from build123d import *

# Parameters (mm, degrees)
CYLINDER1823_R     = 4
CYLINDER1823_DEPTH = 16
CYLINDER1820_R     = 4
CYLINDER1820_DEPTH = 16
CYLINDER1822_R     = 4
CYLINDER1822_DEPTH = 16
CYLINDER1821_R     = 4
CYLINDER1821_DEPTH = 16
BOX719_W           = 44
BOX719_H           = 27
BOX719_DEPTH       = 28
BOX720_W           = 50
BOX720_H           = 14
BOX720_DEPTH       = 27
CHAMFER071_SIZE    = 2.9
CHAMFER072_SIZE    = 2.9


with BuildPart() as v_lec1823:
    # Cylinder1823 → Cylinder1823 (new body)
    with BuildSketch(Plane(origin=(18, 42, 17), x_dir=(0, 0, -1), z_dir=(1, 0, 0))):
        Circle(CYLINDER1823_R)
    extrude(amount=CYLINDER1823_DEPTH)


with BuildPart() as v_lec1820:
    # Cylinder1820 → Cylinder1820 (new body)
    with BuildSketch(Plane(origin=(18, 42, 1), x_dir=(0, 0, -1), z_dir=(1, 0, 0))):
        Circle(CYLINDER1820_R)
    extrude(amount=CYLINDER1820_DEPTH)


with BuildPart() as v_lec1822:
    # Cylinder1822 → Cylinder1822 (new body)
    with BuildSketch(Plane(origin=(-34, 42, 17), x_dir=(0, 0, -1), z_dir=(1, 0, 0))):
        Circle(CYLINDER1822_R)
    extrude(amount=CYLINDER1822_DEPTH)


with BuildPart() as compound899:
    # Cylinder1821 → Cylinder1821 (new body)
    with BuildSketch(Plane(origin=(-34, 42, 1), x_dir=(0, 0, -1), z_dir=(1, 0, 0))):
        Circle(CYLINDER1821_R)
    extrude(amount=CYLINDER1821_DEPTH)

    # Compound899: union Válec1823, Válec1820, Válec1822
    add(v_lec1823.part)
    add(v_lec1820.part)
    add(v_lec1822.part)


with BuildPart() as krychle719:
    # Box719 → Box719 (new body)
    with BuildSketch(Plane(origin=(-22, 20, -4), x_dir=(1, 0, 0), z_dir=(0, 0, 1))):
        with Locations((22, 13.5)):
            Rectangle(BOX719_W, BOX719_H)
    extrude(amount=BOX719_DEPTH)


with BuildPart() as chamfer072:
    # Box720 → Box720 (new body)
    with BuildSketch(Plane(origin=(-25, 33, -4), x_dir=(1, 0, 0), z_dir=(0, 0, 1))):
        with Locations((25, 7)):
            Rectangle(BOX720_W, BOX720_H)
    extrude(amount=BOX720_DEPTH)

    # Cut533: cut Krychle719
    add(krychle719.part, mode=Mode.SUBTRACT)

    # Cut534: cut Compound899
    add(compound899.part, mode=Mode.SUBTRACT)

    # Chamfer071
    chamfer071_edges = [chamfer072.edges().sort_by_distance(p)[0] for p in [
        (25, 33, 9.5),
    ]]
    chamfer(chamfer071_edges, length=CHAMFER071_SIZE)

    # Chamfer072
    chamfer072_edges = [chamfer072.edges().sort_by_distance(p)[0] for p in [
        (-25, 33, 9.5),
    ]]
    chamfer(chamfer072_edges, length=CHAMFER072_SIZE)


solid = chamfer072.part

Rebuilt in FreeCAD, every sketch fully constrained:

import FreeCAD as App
import Part
import Sketcher


def edges_at(feature, points):
    """Names of the edges that pass closest to the given points."""
    edges = feature.Shape.Edges
    near = lambda p: min(range(len(edges)), key=lambda i: edges[i].distToShape(Part.Vertex(*p))[0])
    return sorted({f"Edge{near(p) + 1}" for p in points})

doc = App.newDocument("Part")
body = doc.addObject("PartDesign::Body", "Body")

# Sketch on YZ plane
sketch1 = body.newObject("Sketcher::SketchObject", "Sketch")
sketch1.AttachmentSupport = (doc.getObject("YZ_Plane"), [""])
sketch1.MapMode = "FlatFace"
sketch1.AttachmentOffset = App.Placement(App.Vector(0, 0, 18), App.Rotation())
sketch1.addGeometry(Part.Circle(App.Vector(42, 17, 0), App.Vector(0, 0, 1), 4), False)
sketch1.addConstraint([
    Sketcher.Constraint("Diameter", 0, 8.0),
    Sketcher.Constraint("DistanceX", -1, 1, 0, 3, 42.0),
    Sketcher.Constraint("DistanceY", -1, 1, 0, 3, 17.0),
])
pad1 = body.newObject("PartDesign::Pad", "Pad")
pad1.Profile = sketch1
pad1.Length = 16
body2 = doc.addObject("PartDesign::Body", "Body001")

# Sketch on YZ plane
sketch2 = body2.newObject("Sketcher::SketchObject", "Sketch001")
sketch2.AttachmentSupport = (doc.getObject("YZ_Plane001"), [""])
sketch2.MapMode = "FlatFace"
sketch2.AttachmentOffset = App.Placement(App.Vector(0, 0, 18), App.Rotation())
sketch2.addGeometry(Part.Circle(App.Vector(42, 1, 0), App.Vector(0, 0, 1), 4), False)
sketch2.addConstraint([
    Sketcher.Constraint("Diameter", 0, 8.0),
    Sketcher.Constraint("DistanceX", -1, 1, 0, 3, 42.0),
    Sketcher.Constraint("DistanceY", -1, 1, 0, 3, 1.0),
])
pad2 = body2.newObject("PartDesign::Pad", "Pad001")
pad2.Profile = sketch2
pad2.Length = 16
body3 = doc.addObject("PartDesign::Body", "Body002")

# Sketch on YZ plane
sketch3 = body3.newObject("Sketcher::SketchObject", "Sketch002")
sketch3.AttachmentSupport = (doc.getObject("YZ_Plane002"), [""])
sketch3.MapMode = "FlatFace"
sketch3.AttachmentOffset = App.Placement(App.Vector(0, 0, -34), App.Rotation())
sketch3.addGeometry(Part.Circle(App.Vector(42, 17, 0), App.Vector(0, 0, 1), 4), False)
sketch3.addConstraint([
    Sketcher.Constraint("Diameter", 0, 8.0),
    Sketcher.Constraint("DistanceX", -1, 1, 0, 3, 42.0),
    Sketcher.Constraint("DistanceY", -1, 1, 0, 3, 17.0),
])
pad3 = body3.newObject("PartDesign::Pad", "Pad002")
pad3.Profile = sketch3
pad3.Length = 16
body4 = doc.addObject("PartDesign::Body", "Body003")
body4.AllowCompound = True

# Sketch on YZ plane
sketch4 = body4.newObject("Sketcher::SketchObject", "Sketch003")
sketch4.AttachmentSupport = (doc.getObject("YZ_Plane003"), [""])
sketch4.MapMode = "FlatFace"
sketch4.AttachmentOffset = App.Placement(App.Vector(0, 0, -34), App.Rotation())
sketch4.addGeometry(Part.Circle(App.Vector(42, 1, 0), App.Vector(0, 0, 1), 4), False)
sketch4.addConstraint([
    Sketcher.Constraint("Diameter", 0, 8.0),
    Sketcher.Constraint("DistanceX", -1, 1, 0, 3, 42.0),
    Sketcher.Constraint("DistanceY", -1, 1, 0, 3, 1.0),
])
pad4 = body4.newObject("PartDesign::Pad", "Pad003")
pad4.Profile = sketch4
pad4.Length = 16
doc.recompute()

boolean = body4.newObject("PartDesign::Boolean", "Boolean")
boolean.Type = "Fuse"
boolean.addObjects([body])
doc.recompute()

boolean2 = body4.newObject("PartDesign::Boolean", "Boolean001")
boolean2.Type = "Fuse"
boolean2.addObjects([body2])
doc.recompute()

boolean3 = body4.newObject("PartDesign::Boolean", "Boolean002")
boolean3.Type = "Fuse"
boolean3.addObjects([body3])
body5 = doc.addObject("PartDesign::Body", "Body004")

# Sketch on XY plane
sketch5 = body5.newObject("Sketcher::SketchObject", "Sketch004")
sketch5.AttachmentSupport = (doc.getObject("XY_Plane004"), [""])
sketch5.MapMode = "FlatFace"
sketch5.AttachmentOffset = App.Placement(App.Vector(0, 0, -4), App.Rotation())
sketch5.addGeometry([
    Part.LineSegment(App.Vector(-22, 47, 0), App.Vector(-22, 20, 0)),
    Part.LineSegment(App.Vector(-22, 20, 0), App.Vector(22, 20, 0)),
    Part.LineSegment(App.Vector(22, 20, 0), App.Vector(22, 47, 0)),
    Part.LineSegment(App.Vector(22, 47, 0), App.Vector(-22, 47, 0)),
], False)
sketch5.addConstraint([
    Sketcher.Constraint("Coincident", 0, 2, 1, 1),
    Sketcher.Constraint("Coincident", 1, 2, 2, 1),
    Sketcher.Constraint("Coincident", 2, 2, 3, 1),
    Sketcher.Constraint("Coincident", 3, 2, 0, 1),
    Sketcher.Constraint("Vertical", 0),
    Sketcher.Constraint("Horizontal", 1),
    Sketcher.Constraint("Vertical", 2),
    Sketcher.Constraint("Horizontal", 3),
    Sketcher.Constraint("DistanceX", 1, 1, 1, 2, 44.0),
    Sketcher.Constraint("DistanceY", 0, 2, 0, 1, 27.0),
    Sketcher.Constraint("DistanceX", 0, 2, -1, 1, 22.0),
    Sketcher.Constraint("DistanceY", -1, 1, 0, 2, 20.0),
])
pad5 = body5.newObject("PartDesign::Pad", "Pad004")
pad5.Profile = sketch5
pad5.Length = 28
body6 = doc.addObject("PartDesign::Body", "Body005")
body6.AllowCompound = True

# Sketch on XY plane
sketch6 = body6.newObject("Sketcher::SketchObject", "Sketch005")
sketch6.AttachmentSupport = (doc.getObject("XY_Plane005"), [""])
sketch6.MapMode = "FlatFace"
sketch6.AttachmentOffset = App.Placement(App.Vector(0, 0, -4), App.Rotation())
sketch6.addGeometry([
    Part.LineSegment(App.Vector(-25, 47, 0), App.Vector(-25, 33, 0)),
    Part.LineSegment(App.Vector(-25, 33, 0), App.Vector(25, 33, 0)),
    Part.LineSegment(App.Vector(25, 33, 0), App.Vector(25, 47, 0)),
    Part.LineSegment(App.Vector(25, 47, 0), App.Vector(-25, 47, 0)),
], False)
sketch6.addConstraint([
    Sketcher.Constraint("Coincident", 0, 2, 1, 1),
    Sketcher.Constraint("Coincident", 1, 2, 2, 1),
    Sketcher.Constraint("Coincident", 2, 2, 3, 1),
    Sketcher.Constraint("Coincident", 3, 2, 0, 1),
    Sketcher.Constraint("Vertical", 0),
    Sketcher.Constraint("Horizontal", 1),
    Sketcher.Constraint("Vertical", 2),
    Sketcher.Constraint("Horizontal", 3),
    Sketcher.Constraint("DistanceX", 1, 1, 1, 2, 50.0),
    Sketcher.Constraint("DistanceY", 0, 2, 0, 1, 14.0),
    Sketcher.Constraint("DistanceX", 0, 2, -1, 1, 25.0),
    Sketcher.Constraint("DistanceY", -1, 1, 0, 2, 33.0),
])
pad6 = body6.newObject("PartDesign::Pad", "Pad005")
pad6.Profile = sketch6
pad6.Length = 27
doc.recompute()

boolean4 = body6.newObject("PartDesign::Boolean", "Boolean003")
boolean4.Type = "Cut"
boolean4.addObjects([body5])
doc.recompute()

boolean5 = body6.newObject("PartDesign::Boolean", "Boolean004")
boolean5.Type = "Cut"
boolean5.addObjects([body4])
doc.recompute()

chamfer = body6.newObject("PartDesign::Chamfer", "Chamfer")
chamfer.Base = (boolean5, edges_at(boolean5, [(25, 33, 9.5)]))
chamfer.Size = 2.9
doc.recompute()

chamfer2 = body6.newObject("PartDesign::Chamfer", "Chamfer001")
chamfer2.Base = (chamfer, edges_at(chamfer, [(-25, 33, 9.5)]))
chamfer2.Size = 2.9

doc.recompute()
